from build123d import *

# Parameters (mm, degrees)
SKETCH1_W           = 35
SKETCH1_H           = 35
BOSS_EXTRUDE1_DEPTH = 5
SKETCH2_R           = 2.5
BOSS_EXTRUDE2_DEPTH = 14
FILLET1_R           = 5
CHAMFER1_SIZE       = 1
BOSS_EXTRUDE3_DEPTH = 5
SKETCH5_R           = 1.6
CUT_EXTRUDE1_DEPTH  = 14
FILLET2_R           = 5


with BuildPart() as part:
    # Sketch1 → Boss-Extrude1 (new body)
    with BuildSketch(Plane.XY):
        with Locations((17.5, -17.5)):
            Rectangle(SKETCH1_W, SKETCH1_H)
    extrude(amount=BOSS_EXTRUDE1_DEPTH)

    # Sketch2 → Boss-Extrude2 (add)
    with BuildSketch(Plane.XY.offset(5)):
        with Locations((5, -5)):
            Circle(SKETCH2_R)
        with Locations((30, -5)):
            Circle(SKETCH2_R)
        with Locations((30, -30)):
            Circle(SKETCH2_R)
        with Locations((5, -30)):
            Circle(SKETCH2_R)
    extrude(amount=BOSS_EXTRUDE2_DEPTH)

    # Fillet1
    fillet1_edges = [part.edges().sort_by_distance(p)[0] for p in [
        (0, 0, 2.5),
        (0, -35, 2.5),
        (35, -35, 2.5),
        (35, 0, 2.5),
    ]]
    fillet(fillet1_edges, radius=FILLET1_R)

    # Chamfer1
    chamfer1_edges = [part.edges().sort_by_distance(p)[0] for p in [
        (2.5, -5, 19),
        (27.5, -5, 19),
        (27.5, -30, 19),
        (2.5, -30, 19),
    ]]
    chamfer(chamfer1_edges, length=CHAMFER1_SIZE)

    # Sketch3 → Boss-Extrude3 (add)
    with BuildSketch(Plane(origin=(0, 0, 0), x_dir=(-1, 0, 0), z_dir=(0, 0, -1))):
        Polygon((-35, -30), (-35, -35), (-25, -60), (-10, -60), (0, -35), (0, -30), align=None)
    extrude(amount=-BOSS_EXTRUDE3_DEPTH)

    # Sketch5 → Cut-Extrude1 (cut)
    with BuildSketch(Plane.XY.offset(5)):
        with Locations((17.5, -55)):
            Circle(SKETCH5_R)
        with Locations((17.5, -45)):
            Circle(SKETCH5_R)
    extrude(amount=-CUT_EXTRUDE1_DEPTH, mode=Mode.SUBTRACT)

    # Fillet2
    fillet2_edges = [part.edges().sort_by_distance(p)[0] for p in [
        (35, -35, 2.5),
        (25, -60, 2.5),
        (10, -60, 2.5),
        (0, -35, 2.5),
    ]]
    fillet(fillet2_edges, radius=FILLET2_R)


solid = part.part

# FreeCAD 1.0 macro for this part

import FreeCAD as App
import Part
import Sketcher

V = App.Vector


def edges_at(feature, points):
    """Names of the edges that pass closest to the given points."""
    edges = feature.Shape.Edges
    near = lambda p: min(range(len(edges)), key=lambda i: edges[i].distToShape(Part.Vertex(*p))[0])
    return sorted({f"Edge{near(p) + 1}" for p in points})


def add_polygon(sketch, points):
    """Adds a closed chain of lines whose ends are joined by coincident constraints."""
    first, n = sketch.GeometryCount, len(points)
    for a, b in zip(points, points[1:] + points[:1]):
        sketch.addGeometry(Part.LineSegment(App.Vector(*a, 0), App.Vector(*b, 0)), False)
    for i in range(n):
        sketch.addConstraint(Sketcher.Constraint("Coincident", first + i, 2, first + (i + 1) % n, 1))

doc = App.newDocument("Part")
body = doc.addObject("PartDesign::Body", "Body")

# Sketch on XY plane
sketch1 = body.newObject("Sketcher::SketchObject", "Sketch")
sketch1.AttachmentSupport = (doc.getObject("XY_Plane"), [""])
sketch1.MapMode = "FlatFace"
add_polygon(sketch1, [(0, 0), (0, -35), (35, -35), (35, 0)])  # lines 0-3
sketch1.addConstraint(Sketcher.Constraint("Vertical", 0))
sketch1.addConstraint(Sketcher.Constraint("Horizontal", 1))
sketch1.addConstraint(Sketcher.Constraint("Vertical", 2))
sketch1.addConstraint(Sketcher.Constraint("Horizontal", 3))
sketch1.addConstraint(Sketcher.Constraint("Coincident", 3, 2, -1, 1))
sketch1.addConstraint(Sketcher.Constraint("Equal", 3, 0))
sketch1.addConstraint(Sketcher.Constraint("DistanceX", 1, 1, 1, 2, 35.0))
pad1 = body.newObject("PartDesign::Pad", "Pad")
pad1.Profile = sketch1
pad1.Length = 5

# Sketch on XY plane
sketch2 = body.newObject("Sketcher::SketchObject", "Sketch001")
sketch2.AttachmentSupport = (doc.getObject("XY_Plane"), [""])
sketch2.MapMode = "FlatFace"
sketch2.AttachmentOffset = App.Placement(V(0, 0, 5), App.Rotation())
sketch2.addGeometry(Part.Circle(V(5, -5, 0), V(0, 0, 1), 2.5), False)
sketch2.addGeometry(Part.Circle(V(30, -5, 0), V(0, 0, 1), 2.5), False)
sketch2.addGeometry(Part.Circle(V(30, -30, 0), V(0, 0, 1), 2.5), False)
sketch2.addGeometry(Part.Circle(V(5, -30, 0), V(0, 0, 1), 2.5), False)
sketch2.addConstraint(Sketcher.Constraint("Equal", 0, 1))
sketch2.addConstraint(Sketcher.Constraint("Equal", 1, 2))
sketch2.addConstraint(Sketcher.Constraint("Equal", 2, 3))
sketch2.addConstraint(Sketcher.Constraint("Horizontal", 0, 3, 1, 3))
sketch2.addConstraint(Sketcher.Constraint("Horizontal", 2, 3, 3, 3))
sketch2.addConstraint(Sketcher.Constraint("Vertical", 1, 3, 2, 3))
sketch2.addConstraint(Sketcher.Constraint("Vertical", 0, 3, 3, 3))
sketch2.addConstraint(Sketcher.Constraint("Diameter", 0, 5.0))
sketch2.addConstraint(Sketcher.Constraint("DistanceX", -1, 1, 0, 3, 5.0))
sketch2.addConstraint(Sketcher.Constraint("DistanceY", 0, 3, -1, 1, 5.0))
sketch2.addConstraint(Sketcher.Constraint("DistanceX", -1, 1, 1, 3, 30.0))
sketch2.addConstraint(Sketcher.Constraint("DistanceY", 2, 3, -1, 1, 30.0))
pad2 = body.newObject("PartDesign::Pad", "Pad001")
pad2.Profile = sketch2
pad2.Length = 14
doc.recompute()

fillet = body.newObject("PartDesign::Fillet", "Fillet")
fillet.Base = (pad2, edges_at(pad2, [
    (0, 0, 2.5),
    (0, -35, 2.5),
    (35, -35, 2.5),
    (35, 0, 2.5),
]))
fillet.Radius = 5
doc.recompute()

chamfer = body.newObject("PartDesign::Chamfer", "Chamfer")
chamfer.Base = (fillet, edges_at(fillet, [
    (2.5, -5, 19),
    (27.5, -5, 19),
    (27.5, -30, 19),
    (2.5, -30, 19),
]))
chamfer.Size = 1

# Sketch on XY plane
sketch3 = body.newObject("Sketcher::SketchObject", "Sketch002")
sketch3.AttachmentSupport = (doc.getObject("XY_Plane"), [""])
sketch3.MapMode = "FlatFace"
add_polygon(sketch3, [(35, -30), (35, -35), (25, -60), (10, -60), (0, -35), (0, -30)])  # lines 0-5
sketch3.addConstraint(Sketcher.Constraint("Vertical", 0))
sketch3.addConstraint(Sketcher.Constraint("Horizontal", 2))
sketch3.addConstraint(Sketcher.Constraint("Vertical", 4))
sketch3.addConstraint(Sketcher.Constraint("Horizontal", 5))
sketch3.addConstraint(Sketcher.Constraint("PointOnObject", 3, 2, -2))
sketch3.addConstraint(Sketcher.Constraint("Horizontal", 0, 2, 3, 2))
sketch3.addConstraint(Sketcher.Constraint("Equal", 1, 3))
sketch3.addConstraint(Sketcher.Constraint("DistanceX", 2, 2, 2, 1, 15.0))
sketch3.addConstraint(Sketcher.Constraint("DistanceX", 5, 1, 5, 2, 35.0))
sketch3.addConstraint(Sketcher.Constraint("DistanceY", 0, 2, 0, 1, 5.0))
sketch3.addConstraint(Sketcher.Constraint("DistanceY", 0, 2, -1, 1, 35.0))
sketch3.addConstraint(Sketcher.Constraint("DistanceY", 1, 2, -1, 1, 60.0))
pad3 = body.newObject("PartDesign::Pad", "Pad002")
pad3.Profile = sketch3
pad3.Length = 5

# Sketch on XY plane
sketch4 = body.newObject("Sketcher::SketchObject", "Sketch003")
sketch4.AttachmentSupport = (doc.getObject("XY_Plane"), [""])
sketch4.MapMode = "FlatFace"
sketch4.AttachmentOffset = App.Placement(V(0, 0, 5), App.Rotation())
sketch4.addGeometry(Part.Circle(V(17.5, -55, 0), V(0, 0, 1), 1.6), False)
sketch4.addGeometry(Part.Circle(V(17.5, -45, 0), V(0, 0, 1), 1.6), False)
sketch4.addConstraint(Sketcher.Constraint("Equal", 0, 1))
sketch4.addConstraint(Sketcher.Constraint("Vertical", 0, 3, 1, 3))
sketch4.addConstraint(Sketcher.Constraint("Diameter", 0, 3.2))
sketch4.addConstraint(Sketcher.Constraint("DistanceY", 0, 3, -1, 1, 55.0))
sketch4.addConstraint(Sketcher.Constraint("DistanceY", 1, 3, -1, 1, 45.0))
sketch4.addConstraint(Sketcher.Constraint("DistanceX", -1, 1, 0, 3, 17.5))
pocket1 = body.newObject("PartDesign::Pocket", "Pocket")
pocket1.Profile = sketch4
pocket1.Length = 14
doc.recompute()

fillet2 = body.newObject("PartDesign::Fillet", "Fillet001")
fillet2.Base = (pocket1, edges_at(pocket1, [
    (35, -35, 2.5),
    (25, -60, 2.5),
    (10, -60, 2.5),
    (0, -35, 2.5),
]))
fillet2.Radius = 5

doc.recompute()
